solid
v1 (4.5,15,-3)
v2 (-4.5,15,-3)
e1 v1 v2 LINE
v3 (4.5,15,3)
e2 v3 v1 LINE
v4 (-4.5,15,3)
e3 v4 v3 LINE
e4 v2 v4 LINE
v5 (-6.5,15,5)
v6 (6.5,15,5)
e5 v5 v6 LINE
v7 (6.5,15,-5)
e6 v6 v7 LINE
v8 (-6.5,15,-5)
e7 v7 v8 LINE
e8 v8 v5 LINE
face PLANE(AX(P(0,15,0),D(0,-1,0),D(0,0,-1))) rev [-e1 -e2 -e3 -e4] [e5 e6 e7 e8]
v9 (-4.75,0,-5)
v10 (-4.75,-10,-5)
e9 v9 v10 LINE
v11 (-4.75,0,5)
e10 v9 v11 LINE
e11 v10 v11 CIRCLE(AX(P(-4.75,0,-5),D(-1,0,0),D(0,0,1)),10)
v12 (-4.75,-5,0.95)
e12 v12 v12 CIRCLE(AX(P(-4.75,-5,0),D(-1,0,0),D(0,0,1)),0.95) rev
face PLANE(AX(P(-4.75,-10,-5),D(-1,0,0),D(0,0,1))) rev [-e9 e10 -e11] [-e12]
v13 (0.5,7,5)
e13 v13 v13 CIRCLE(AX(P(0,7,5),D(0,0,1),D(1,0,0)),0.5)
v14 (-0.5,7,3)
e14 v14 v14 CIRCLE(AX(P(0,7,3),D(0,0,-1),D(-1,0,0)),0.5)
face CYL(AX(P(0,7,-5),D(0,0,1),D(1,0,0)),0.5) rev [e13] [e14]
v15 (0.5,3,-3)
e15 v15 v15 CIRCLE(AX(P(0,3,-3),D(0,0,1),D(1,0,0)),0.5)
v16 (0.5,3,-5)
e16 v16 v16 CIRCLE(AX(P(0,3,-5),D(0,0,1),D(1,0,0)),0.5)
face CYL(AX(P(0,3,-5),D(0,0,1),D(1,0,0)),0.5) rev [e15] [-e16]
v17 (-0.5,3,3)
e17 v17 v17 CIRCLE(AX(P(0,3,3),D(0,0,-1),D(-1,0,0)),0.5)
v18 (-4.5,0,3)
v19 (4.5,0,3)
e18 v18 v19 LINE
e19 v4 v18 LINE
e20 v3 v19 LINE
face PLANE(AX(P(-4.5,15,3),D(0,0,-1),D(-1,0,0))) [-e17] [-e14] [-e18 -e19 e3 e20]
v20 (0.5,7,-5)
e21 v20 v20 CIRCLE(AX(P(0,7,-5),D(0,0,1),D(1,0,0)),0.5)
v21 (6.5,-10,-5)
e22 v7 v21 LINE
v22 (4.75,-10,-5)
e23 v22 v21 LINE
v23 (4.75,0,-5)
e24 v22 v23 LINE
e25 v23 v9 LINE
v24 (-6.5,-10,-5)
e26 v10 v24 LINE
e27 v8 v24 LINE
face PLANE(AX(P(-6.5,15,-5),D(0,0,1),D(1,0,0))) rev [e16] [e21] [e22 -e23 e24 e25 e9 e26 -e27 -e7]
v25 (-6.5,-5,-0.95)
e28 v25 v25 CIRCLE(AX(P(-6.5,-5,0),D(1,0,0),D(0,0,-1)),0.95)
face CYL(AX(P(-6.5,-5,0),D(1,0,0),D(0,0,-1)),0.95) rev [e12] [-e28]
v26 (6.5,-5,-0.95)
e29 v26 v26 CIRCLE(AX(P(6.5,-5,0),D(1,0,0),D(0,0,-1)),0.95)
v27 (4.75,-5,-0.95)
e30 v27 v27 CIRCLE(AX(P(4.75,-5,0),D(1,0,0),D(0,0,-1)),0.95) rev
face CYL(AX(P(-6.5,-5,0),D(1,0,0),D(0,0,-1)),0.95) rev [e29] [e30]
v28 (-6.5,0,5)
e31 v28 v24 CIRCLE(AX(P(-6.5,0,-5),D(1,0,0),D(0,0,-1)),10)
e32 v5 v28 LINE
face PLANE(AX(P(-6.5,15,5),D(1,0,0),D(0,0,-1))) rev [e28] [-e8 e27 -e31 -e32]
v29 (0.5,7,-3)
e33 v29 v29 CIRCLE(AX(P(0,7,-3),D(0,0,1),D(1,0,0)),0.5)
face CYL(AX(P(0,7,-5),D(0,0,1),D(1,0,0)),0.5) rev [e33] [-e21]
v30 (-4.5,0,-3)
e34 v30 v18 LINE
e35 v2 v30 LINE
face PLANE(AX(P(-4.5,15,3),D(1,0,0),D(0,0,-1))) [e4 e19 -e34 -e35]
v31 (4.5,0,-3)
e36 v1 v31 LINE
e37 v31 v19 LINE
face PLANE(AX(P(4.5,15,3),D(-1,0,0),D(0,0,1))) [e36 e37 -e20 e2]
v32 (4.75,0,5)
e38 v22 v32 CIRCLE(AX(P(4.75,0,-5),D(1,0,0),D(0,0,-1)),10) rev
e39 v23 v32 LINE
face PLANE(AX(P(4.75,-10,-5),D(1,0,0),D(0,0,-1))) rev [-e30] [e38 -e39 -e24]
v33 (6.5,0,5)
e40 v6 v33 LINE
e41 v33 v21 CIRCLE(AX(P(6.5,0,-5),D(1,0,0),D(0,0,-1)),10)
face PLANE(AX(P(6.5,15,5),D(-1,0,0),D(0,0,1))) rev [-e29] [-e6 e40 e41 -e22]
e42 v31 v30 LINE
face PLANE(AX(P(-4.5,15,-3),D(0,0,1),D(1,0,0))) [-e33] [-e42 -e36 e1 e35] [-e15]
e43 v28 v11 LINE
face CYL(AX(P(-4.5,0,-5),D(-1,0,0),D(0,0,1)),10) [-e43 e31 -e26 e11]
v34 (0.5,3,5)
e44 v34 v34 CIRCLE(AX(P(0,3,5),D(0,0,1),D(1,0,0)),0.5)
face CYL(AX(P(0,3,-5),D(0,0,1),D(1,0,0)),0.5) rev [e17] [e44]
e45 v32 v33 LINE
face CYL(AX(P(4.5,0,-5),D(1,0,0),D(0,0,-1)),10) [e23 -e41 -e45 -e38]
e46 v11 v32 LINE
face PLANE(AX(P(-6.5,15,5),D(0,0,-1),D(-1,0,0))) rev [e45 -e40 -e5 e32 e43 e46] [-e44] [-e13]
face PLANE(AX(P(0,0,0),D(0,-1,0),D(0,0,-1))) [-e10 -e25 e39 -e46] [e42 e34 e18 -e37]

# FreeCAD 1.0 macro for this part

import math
import FreeCAD as App
import Part
import Sketcher
from FreeCAD import Vector
Q = App.Units.Quantity

doc = App.newDocument("Part")
body = doc.addObject("PartDesign::Body", "Body")

# Sketch on XZ plane
sketch1 = doc.addObject("Sketcher::SketchObject", "Sketch")
body.addObject(sketch1)
sketch1.AttachmentSupport = (doc.XZ_Plane, [""])
sketch1.MapMode = "FlatFace"
sketch1.addGeometry([
    Part.LineSegment(Vector(-6.5, -5, 0), Vector(-6.5, 5, 0)),  # 0
    Part.LineSegment(Vector(-6.5, 5, 0), Vector(6.5, 5, 0)),  # 1
    Part.LineSegment(Vector(6.5, 5, 0), Vector(6.5, -5, 0)),  # 2
    Part.LineSegment(Vector(6.5, -5, 0), Vector(-6.5, -5, 0)),  # 3
    Part.LineSegment(Vector(4.5, 3, 0), Vector(-4.5, 3, 0)),  # 4
    Part.LineSegment(Vector(-4.5, 3, 0), Vector(-4.5, -3, 0)),  # 5
    Part.LineSegment(Vector(-4.5, -3, 0), Vector(4.5, -3, 0)),  # 6
    Part.LineSegment(Vector(4.5, -3, 0), Vector(4.5, 3, 0)),  # 7
], False)
sketch1.addConstraint([
    Sketcher.Constraint("Coincident", 0, 2, 1, 1),
    Sketcher.Constraint("Coincident", 1, 2, 2, 1),
    Sketcher.Constraint("Coincident", 2, 2, 3, 1),
    Sketcher.Constraint("Coincident", 3, 2, 0, 1),
    Sketcher.Constraint("Coincident", 4, 2, 5, 1),
    Sketcher.Constraint("Coincident", 5, 2, 6, 1),
    Sketcher.Constraint("Coincident", 6, 2, 7, 1),
    Sketcher.Constraint("Coincident", 7, 2, 4, 1),
    Sketcher.Constraint("Vertical", 0),
    Sketcher.Constraint("Horizontal", 1),
    Sketcher.Constraint("Vertical", 2),
    Sketcher.Constraint("Horizontal", 3),
    Sketcher.Constraint("Horizontal", 4),
    Sketcher.Constraint("Vertical", 5),
    Sketcher.Constraint("Horizontal", 6),
    Sketcher.Constraint("Vertical", 7),
    Sketcher.Constraint("Symmetric", 0, 2, 2, 2, -1, 1),
    Sketcher.Constraint("Symmetric", 4, 2, 6, 2, -1, 1),
    Sketcher.Constraint("DistanceX", 1, 1, 1, 2, Q("13 mm")),
    Sketcher.Constraint("DistanceX", 4, 2, 4, 1, Q("9 mm")),
    Sketcher.Constraint("DistanceY", 0, 1, 0, 2, Q("10 mm")),
    Sketcher.Constraint("DistanceY", 5, 2, 5, 1, Q("6 mm")),
])
pad1 = doc.addObject("PartDesign::Pad", "Pad")
body.addObject(pad1)
pad1.Profile = sketch1
pad1.Length = 15
pad1.Reversed = True

# Sketch on YZ plane
sketch2 = doc.addObject("Sketcher::SketchObject", "Sketch001")
body.addObject(sketch2)
sketch2.AttachmentSupport = (doc.YZ_Plane, [""])
sketch2.MapMode = "FlatFace"
sketch2.AttachmentOffset = App.Placement(Vector(0, 0, 6.5), App.Rotation())
sketch2.addGeometry([
    Part.ArcOfCircle(Part.Circle(Vector(0, -5, 0), Vector(0, 0, 1), 10), math.radians(90), math.radians(180)),
    Part.LineSegment(Vector(-10, -5, 0), Vector(0, -5, 0)),
    Part.LineSegment(Vector(0, -5, 0), Vector(0, 5, 0)),
], False)
sketch2.addConstraint([
    Sketcher.Constraint("Coincident", 0, 2, 1, 1),
    Sketcher.Constraint("Coincident", 1, 2, 2, 1),
    Sketcher.Constraint("Coincident", 2, 2, 0, 1),
    Sketcher.Constraint("Horizontal", 1),
    Sketcher.Constraint("Vertical", 2),
    Sketcher.Constraint("Coincident", 1, 2, 0, 3),
    Sketcher.Constraint("Symmetric", 1, 2, 2, 2, -1, 1),
    Sketcher.Constraint("Radius", 0, Q("10 mm")),
])
pad2 = doc.addObject("PartDesign::Pad", "Pad001")
body.addObject(pad2)
pad2.Profile = sketch2
pad2.Length = 2
pad2.Reversed = True
doc.recompute()

mirrored = doc.addObject("PartDesign::Mirrored", "Mirrored")
body.addObject(mirrored)
mirrored.Originals = [pad2]
mirrored.MirrorPlane = (doc.YZ_Plane, [""])
body.Tip = mirrored

# Sketch on YZ plane
sketch3 = doc.addObject("Sketcher::SketchObject", "Sketch002")
body.addObject(sketch3)
sketch3.AttachmentSupport = (doc.YZ_Plane, [""])
sketch3.MapMode = "FlatFace"
sketch3.AttachmentOffset = App.Placement(Vector(0, 0, 6.5), App.Rotation())
sketch3.addGeometry(Part.Circle(Vector(-5, 0, 0), Vector(0, 0, 1), 0.95), False)
sketch3.addConstraint([
    Sketcher.Constraint("PointOnObject", 0, 3, -1),
    Sketcher.Constraint("Diameter", 0, Q("1.9 mm")),
    Sketcher.Constraint("DistanceX", 0, 3, -1, 1, Q("5 mm")),
])
pocket1 = doc.addObject("PartDesign::Pocket", "Pocket")
body.addObject(pocket1)
pocket1.Profile = sketch3
pocket1.Type = "ThroughAll"

# Sketch on XY plane
sketch4 = doc.addObject("Sketcher::SketchObject", "Sketch003")
body.addObject(sketch4)
sketch4.AttachmentSupport = (doc.XY_Plane, [""])
sketch4.MapMode = "FlatFace"
sketch4.AttachmentOffset = App.Placement(Vector(0, 0, 5), App.Rotation())
sketch4.addGeometry([
    Part.Circle(Vector(0, 3, 0), Vector(0, 0, 1), 0.5),
    Part.Circle(Vector(0, 7, 0), Vector(0, 0, 1), 0.5),
], False)
sketch4.addConstraint([
    Sketcher.Constraint("Equal", 0, 1),
    Sketcher.Constraint("PointOnObject", 0, 3, -2),
    Sketcher.Constraint("PointOnObject", 1, 3, -2),
    Sketcher.Constraint("Diameter", 0, Q("1 mm")),
    Sketcher.Constraint("DistanceY", -1, 1, 0, 3, Q("3 mm")),
    Sketcher.Constraint("DistanceY", -1, 1, 1, 3, Q("7 mm")),
])
pocket2 = doc.addObject("PartDesign::Pocket", "Pocket001")
body.addObject(pocket2)
pocket2.Profile = sketch4
pocket2.Type = "ThroughAll"

# Sketch on XY plane
sketch5 = doc.addObject("Sketcher::SketchObject", "Sketch004")
body.addObject(sketch5)
sketch5.AttachmentSupport = (doc.XY_Plane, [""])
sketch5.MapMode = "FlatFace"
sketch5.addGeometry([
    Part.LineSegment(Vector(-4.75, 0, 0), Vector(-4.75, -10, 0)),  # 0
    Part.LineSegment(Vector(-4.75, -10, 0), Vector(-4.5, -10, 0)),  # 1
    Part.LineSegment(Vector(-4.5, -10, 0), Vector(-4.5, 0, 0)),  # 2
    Part.LineSegment(Vector(-4.5, 0, 0), Vector(-4.75, 0, 0)),  # 3
    Part.LineSegment(Vector(4.5, 0, 0), Vector(4.5, -10, 0)),  # 4
    Part.LineSegment(Vector(4.5, -10, 0), Vector(4.75, -10, 0)),  # 5
    Part.LineSegment(Vector(4.75, -10, 0), Vector(4.75, 0, 0)),  # 6
    Part.LineSegment(Vector(4.75, 0, 0), Vector(4.5, 0, 0)),  # 7
], False)
sketch5.addConstraint([
    Sketcher.Constraint("Coincident", 0, 2, 1, 1),
    Sketcher.Constraint("Coincident", 1, 2, 2, 1),
    Sketcher.Constraint("Coincident", 2, 2, 3, 1),
    Sketcher.Constraint("Coincident", 3, 2, 0, 1),
    Sketcher.Constraint("Coincident", 4, 2, 5, 1),
    Sketcher.Constraint("Coincident", 5, 2, 6, 1),
    Sketcher.Constraint("Coincident", 6, 2, 7, 1),
    Sketcher.Constraint("Coincident", 7, 2, 4, 1),
    Sketcher.Constraint("Vertical", 0),
    Sketcher.Constraint("Horizontal", 1),
    Sketcher.Constraint("Vertical", 2),
    Sketcher.Constraint("Horizontal", 3),
    Sketcher.Constraint("Vertical", 4),
    Sketcher.Constraint("Horizontal", 5),
    Sketcher.Constraint("Vertical", 6),
    Sketcher.Constraint("Horizontal", 7),
    Sketcher.Constraint("Symmetric", 3, 2, 6, 2, -1, 1),
    Sketcher.Constraint("Symmetric", 1, 2, 4, 2, -2),
    Sketcher.Constraint("PointOnObject", 2, 2, -1),
    Sketcher.Constraint("DistanceY", 0, 2, 0, 1, Q("10 mm")),
    Sketcher.Constraint("DistanceX", 1, 2, 4, 2, Q("9 mm")),
    Sketcher.Constraint("DistanceX", 1, 1, 1, 2, Q("0.25 mm")),
])
pocket3 = doc.addObject("PartDesign::Pocket", "Pocket002")
body.addObject(pocket3)
pocket3.Profile = sketch5
pocket3.Type = "ThroughAll"
pocket3.Midplane = True

doc.recompute()
